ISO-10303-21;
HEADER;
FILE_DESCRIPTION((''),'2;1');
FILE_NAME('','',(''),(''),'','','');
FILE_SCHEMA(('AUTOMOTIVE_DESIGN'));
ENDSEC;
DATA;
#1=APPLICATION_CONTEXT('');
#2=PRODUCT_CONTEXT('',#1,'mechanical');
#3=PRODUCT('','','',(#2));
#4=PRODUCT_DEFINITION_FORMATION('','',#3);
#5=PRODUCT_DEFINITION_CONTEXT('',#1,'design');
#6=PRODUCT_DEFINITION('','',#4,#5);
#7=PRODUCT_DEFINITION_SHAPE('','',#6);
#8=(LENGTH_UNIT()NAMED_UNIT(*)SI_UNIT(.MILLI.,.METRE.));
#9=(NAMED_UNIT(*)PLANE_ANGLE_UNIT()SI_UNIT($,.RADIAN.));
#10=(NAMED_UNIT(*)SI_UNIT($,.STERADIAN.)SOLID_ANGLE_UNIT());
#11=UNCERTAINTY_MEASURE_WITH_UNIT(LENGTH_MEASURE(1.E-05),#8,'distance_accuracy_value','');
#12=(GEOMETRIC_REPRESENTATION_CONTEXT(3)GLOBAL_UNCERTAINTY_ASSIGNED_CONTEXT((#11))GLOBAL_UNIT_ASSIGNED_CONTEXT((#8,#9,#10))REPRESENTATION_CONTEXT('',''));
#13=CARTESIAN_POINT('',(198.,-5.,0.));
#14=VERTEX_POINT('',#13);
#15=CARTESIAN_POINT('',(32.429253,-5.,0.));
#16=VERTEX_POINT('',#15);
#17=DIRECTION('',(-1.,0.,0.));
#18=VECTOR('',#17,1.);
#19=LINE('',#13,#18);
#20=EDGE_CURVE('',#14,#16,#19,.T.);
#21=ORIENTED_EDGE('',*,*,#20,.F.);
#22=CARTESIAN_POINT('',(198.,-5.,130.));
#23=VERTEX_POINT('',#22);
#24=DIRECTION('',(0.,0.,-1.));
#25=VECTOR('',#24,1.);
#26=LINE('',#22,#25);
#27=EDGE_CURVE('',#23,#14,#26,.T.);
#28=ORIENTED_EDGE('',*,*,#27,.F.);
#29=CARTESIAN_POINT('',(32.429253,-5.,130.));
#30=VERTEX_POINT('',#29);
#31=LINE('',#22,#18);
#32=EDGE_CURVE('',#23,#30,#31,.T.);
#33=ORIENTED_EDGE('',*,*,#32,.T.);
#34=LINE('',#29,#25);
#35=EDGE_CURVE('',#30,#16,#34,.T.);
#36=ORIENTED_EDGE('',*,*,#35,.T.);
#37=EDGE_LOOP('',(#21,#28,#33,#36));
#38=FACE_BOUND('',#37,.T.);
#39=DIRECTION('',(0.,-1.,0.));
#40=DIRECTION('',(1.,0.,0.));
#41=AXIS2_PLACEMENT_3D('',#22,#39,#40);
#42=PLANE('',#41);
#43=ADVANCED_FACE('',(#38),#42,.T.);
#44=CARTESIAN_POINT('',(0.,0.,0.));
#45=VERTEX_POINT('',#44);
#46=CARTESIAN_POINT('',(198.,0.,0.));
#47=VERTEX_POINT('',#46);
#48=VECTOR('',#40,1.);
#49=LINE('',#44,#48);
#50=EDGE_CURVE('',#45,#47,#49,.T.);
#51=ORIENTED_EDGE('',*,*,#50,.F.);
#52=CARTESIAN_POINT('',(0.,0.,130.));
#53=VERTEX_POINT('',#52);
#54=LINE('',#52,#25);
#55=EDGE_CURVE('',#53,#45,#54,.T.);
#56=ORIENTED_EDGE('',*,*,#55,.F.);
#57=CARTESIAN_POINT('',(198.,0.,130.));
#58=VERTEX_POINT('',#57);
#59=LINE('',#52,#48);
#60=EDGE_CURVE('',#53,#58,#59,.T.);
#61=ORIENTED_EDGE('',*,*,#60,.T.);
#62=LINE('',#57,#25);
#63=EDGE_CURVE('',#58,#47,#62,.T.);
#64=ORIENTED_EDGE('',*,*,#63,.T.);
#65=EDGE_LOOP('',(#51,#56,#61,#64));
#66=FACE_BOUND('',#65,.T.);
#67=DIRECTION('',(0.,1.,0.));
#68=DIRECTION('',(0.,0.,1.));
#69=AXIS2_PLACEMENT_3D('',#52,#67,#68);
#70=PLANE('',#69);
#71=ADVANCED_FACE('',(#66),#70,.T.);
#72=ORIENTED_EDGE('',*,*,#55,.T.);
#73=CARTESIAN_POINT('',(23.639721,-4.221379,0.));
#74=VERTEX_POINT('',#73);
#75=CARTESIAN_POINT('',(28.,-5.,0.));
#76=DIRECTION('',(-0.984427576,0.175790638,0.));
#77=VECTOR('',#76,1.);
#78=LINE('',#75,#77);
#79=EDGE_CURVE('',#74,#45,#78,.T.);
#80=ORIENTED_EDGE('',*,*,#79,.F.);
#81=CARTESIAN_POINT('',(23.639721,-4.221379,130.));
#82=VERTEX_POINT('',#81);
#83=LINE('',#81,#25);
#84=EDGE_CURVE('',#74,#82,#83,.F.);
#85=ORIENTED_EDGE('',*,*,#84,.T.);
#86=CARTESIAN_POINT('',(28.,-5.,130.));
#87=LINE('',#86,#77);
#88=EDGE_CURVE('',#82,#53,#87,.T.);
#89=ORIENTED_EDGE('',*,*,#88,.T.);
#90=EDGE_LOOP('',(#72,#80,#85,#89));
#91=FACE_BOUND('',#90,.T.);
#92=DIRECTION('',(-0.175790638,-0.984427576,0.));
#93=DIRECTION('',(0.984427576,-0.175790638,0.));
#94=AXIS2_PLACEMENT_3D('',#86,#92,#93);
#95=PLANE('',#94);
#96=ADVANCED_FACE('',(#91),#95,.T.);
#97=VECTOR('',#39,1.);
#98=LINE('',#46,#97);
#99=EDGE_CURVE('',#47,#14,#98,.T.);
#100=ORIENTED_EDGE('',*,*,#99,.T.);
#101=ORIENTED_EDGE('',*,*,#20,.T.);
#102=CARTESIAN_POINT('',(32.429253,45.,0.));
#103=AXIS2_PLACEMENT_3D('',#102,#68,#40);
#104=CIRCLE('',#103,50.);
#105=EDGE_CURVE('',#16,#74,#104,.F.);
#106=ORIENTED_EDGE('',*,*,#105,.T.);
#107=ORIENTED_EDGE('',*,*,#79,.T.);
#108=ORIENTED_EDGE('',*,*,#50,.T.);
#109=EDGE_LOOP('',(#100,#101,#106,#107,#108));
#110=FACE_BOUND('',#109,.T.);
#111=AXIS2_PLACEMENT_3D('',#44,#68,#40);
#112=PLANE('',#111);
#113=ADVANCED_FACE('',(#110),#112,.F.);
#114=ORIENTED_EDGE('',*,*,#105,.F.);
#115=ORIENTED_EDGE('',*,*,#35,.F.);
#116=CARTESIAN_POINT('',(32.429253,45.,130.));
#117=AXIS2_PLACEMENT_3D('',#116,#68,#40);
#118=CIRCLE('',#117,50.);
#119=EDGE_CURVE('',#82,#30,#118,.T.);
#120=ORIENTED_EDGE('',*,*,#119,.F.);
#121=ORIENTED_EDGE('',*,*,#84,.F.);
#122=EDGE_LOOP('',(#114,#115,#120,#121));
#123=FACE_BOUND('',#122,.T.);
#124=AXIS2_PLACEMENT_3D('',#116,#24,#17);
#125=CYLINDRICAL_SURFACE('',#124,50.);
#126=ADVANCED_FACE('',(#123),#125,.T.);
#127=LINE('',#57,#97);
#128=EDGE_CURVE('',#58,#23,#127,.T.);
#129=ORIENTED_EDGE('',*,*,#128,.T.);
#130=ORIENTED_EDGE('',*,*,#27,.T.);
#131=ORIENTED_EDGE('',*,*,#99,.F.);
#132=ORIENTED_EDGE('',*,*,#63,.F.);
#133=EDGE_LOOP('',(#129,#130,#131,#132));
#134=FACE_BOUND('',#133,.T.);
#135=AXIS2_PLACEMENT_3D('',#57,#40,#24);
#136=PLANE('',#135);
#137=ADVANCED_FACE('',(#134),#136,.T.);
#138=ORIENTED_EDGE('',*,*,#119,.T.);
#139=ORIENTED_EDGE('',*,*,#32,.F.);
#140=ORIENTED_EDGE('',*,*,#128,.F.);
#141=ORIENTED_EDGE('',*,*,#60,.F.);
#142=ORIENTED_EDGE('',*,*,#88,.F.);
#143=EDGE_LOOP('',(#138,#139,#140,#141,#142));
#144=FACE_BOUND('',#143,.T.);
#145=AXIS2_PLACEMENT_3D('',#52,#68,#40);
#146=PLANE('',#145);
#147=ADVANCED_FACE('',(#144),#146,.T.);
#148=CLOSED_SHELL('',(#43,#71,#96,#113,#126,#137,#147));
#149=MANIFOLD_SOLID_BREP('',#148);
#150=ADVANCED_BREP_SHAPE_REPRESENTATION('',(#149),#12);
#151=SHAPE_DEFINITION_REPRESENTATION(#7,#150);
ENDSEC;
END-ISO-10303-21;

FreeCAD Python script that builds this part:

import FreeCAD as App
import Part
import Sketcher
from FreeCAD import Vector
Q = App.Units.Quantity


def edges_at(feature, points):
    """Names of the edges that pass closest to the given points."""
    edges = feature.Shape.Edges
    near = lambda p: min(range(len(edges)), key=lambda i: edges[i].distToShape(Part.Vertex(*p))[0])
    return sorted({f"Edge{near(p) + 1}" for p in points})


def add_polygon(sketch, points):
    """Adds a closed chain of lines whose ends are joined by coincident constraints."""
    first, n = sketch.GeometryCount, len(points)
    for a, b in zip(points, points[1:] + points[:1]):
        sketch.addGeometry(Part.LineSegment(App.Vector(*a, 0), App.Vector(*b, 0)), False)
    for i in range(n):
        sketch.addConstraint(Sketcher.Constraint("Coincident", first + i, 2, first + (i + 1) % n, 1))

doc = App.newDocument("Part")
body = doc.addObject("PartDesign::Body", "Body")

sketch1 = body.newObject("Sketcher::SketchObject", "Sketch")
sketch1.AttachmentSupport = (doc.getObject("XY_Plane"), [""])
sketch1.MapMode = "FlatFace"
add_polygon(sketch1, [(198, 0), (0, 0), (28, -5), (198, -5)])
sketch1.addConstraint(Sketcher.Constraint("Horizontal", 0))
sketch1.addConstraint(Sketcher.Constraint("Horizontal", 2))
sketch1.addConstraint(Sketcher.Constraint("Vertical", 3))
sketch1.addConstraint(Sketcher.Constraint("Coincident", 0, 2, -1, 1))
sketch1.addConstraint(Sketcher.Constraint("DistanceX", 0, 2, 0, 1, Q("198 mm")))
sketch1.addConstraint(Sketcher.Constraint("DistanceX", 2, 1, 2, 2, Q("170 mm")))
sketch1.addConstraint(Sketcher.Constraint("DistanceY", 3, 1, 3, 2, Q("5 mm")))
pad1 = body.newObject("PartDesign::Pad", "Pad")
pad1.Profile = sketch1
pad1.Length = 130
doc.recompute()

fillet = body.newObject("PartDesign::Fillet", "Fillet")
fillet.Base = (pad1, edges_at(pad1, [(28, -5, 65)]))
fillet.Radius = 50

doc.recompute()
